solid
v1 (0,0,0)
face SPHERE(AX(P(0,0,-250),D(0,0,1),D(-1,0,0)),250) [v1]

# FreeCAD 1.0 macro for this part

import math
import FreeCAD as App
import Part
import Sketcher
from FreeCAD import Vector

doc = App.newDocument("Part")
body = doc.addObject("PartDesign::Body", "Body")

sketch1 = body.newObject("Sketcher::SketchObject", "Sketch")
sketch1.AttachmentSupport = (doc.getObject("XZ_Plane"), [""])
sketch1.MapMode = "FlatFace"
sketch1.addGeometry([
    Part.LineSegment(Vector(0, -500, 0), Vector(0, 0, 0)),
    Part.ArcOfCircle(Part.Circle(Vector(0, -250, 0), Vector(0, 0, 1), 250), math.radians(-90), math.radians(90)),
], False)
sketch1.addConstraint([
    Sketcher.Constraint("Coincident", 0, 1, 1, 1),
    Sketcher.Constraint("Coincident", 1, 2, 0, 2),
    Sketcher.Constraint("Vertical", 0),
    Sketcher.Constraint("Coincident", 1, 2, -1, 1),
    Sketcher.Constraint("PointOnObject", 1, 3, -2),
    Sketcher.Constraint("Radius", 1, 250.0),
])
revolution = body.newObject("PartDesign::Revolution", "Revolution")
revolution.Profile = sketch1
revolution.ReferenceAxis = (sketch1, ["V_Axis"])
revolution.Angle = 360

doc.recompute()
